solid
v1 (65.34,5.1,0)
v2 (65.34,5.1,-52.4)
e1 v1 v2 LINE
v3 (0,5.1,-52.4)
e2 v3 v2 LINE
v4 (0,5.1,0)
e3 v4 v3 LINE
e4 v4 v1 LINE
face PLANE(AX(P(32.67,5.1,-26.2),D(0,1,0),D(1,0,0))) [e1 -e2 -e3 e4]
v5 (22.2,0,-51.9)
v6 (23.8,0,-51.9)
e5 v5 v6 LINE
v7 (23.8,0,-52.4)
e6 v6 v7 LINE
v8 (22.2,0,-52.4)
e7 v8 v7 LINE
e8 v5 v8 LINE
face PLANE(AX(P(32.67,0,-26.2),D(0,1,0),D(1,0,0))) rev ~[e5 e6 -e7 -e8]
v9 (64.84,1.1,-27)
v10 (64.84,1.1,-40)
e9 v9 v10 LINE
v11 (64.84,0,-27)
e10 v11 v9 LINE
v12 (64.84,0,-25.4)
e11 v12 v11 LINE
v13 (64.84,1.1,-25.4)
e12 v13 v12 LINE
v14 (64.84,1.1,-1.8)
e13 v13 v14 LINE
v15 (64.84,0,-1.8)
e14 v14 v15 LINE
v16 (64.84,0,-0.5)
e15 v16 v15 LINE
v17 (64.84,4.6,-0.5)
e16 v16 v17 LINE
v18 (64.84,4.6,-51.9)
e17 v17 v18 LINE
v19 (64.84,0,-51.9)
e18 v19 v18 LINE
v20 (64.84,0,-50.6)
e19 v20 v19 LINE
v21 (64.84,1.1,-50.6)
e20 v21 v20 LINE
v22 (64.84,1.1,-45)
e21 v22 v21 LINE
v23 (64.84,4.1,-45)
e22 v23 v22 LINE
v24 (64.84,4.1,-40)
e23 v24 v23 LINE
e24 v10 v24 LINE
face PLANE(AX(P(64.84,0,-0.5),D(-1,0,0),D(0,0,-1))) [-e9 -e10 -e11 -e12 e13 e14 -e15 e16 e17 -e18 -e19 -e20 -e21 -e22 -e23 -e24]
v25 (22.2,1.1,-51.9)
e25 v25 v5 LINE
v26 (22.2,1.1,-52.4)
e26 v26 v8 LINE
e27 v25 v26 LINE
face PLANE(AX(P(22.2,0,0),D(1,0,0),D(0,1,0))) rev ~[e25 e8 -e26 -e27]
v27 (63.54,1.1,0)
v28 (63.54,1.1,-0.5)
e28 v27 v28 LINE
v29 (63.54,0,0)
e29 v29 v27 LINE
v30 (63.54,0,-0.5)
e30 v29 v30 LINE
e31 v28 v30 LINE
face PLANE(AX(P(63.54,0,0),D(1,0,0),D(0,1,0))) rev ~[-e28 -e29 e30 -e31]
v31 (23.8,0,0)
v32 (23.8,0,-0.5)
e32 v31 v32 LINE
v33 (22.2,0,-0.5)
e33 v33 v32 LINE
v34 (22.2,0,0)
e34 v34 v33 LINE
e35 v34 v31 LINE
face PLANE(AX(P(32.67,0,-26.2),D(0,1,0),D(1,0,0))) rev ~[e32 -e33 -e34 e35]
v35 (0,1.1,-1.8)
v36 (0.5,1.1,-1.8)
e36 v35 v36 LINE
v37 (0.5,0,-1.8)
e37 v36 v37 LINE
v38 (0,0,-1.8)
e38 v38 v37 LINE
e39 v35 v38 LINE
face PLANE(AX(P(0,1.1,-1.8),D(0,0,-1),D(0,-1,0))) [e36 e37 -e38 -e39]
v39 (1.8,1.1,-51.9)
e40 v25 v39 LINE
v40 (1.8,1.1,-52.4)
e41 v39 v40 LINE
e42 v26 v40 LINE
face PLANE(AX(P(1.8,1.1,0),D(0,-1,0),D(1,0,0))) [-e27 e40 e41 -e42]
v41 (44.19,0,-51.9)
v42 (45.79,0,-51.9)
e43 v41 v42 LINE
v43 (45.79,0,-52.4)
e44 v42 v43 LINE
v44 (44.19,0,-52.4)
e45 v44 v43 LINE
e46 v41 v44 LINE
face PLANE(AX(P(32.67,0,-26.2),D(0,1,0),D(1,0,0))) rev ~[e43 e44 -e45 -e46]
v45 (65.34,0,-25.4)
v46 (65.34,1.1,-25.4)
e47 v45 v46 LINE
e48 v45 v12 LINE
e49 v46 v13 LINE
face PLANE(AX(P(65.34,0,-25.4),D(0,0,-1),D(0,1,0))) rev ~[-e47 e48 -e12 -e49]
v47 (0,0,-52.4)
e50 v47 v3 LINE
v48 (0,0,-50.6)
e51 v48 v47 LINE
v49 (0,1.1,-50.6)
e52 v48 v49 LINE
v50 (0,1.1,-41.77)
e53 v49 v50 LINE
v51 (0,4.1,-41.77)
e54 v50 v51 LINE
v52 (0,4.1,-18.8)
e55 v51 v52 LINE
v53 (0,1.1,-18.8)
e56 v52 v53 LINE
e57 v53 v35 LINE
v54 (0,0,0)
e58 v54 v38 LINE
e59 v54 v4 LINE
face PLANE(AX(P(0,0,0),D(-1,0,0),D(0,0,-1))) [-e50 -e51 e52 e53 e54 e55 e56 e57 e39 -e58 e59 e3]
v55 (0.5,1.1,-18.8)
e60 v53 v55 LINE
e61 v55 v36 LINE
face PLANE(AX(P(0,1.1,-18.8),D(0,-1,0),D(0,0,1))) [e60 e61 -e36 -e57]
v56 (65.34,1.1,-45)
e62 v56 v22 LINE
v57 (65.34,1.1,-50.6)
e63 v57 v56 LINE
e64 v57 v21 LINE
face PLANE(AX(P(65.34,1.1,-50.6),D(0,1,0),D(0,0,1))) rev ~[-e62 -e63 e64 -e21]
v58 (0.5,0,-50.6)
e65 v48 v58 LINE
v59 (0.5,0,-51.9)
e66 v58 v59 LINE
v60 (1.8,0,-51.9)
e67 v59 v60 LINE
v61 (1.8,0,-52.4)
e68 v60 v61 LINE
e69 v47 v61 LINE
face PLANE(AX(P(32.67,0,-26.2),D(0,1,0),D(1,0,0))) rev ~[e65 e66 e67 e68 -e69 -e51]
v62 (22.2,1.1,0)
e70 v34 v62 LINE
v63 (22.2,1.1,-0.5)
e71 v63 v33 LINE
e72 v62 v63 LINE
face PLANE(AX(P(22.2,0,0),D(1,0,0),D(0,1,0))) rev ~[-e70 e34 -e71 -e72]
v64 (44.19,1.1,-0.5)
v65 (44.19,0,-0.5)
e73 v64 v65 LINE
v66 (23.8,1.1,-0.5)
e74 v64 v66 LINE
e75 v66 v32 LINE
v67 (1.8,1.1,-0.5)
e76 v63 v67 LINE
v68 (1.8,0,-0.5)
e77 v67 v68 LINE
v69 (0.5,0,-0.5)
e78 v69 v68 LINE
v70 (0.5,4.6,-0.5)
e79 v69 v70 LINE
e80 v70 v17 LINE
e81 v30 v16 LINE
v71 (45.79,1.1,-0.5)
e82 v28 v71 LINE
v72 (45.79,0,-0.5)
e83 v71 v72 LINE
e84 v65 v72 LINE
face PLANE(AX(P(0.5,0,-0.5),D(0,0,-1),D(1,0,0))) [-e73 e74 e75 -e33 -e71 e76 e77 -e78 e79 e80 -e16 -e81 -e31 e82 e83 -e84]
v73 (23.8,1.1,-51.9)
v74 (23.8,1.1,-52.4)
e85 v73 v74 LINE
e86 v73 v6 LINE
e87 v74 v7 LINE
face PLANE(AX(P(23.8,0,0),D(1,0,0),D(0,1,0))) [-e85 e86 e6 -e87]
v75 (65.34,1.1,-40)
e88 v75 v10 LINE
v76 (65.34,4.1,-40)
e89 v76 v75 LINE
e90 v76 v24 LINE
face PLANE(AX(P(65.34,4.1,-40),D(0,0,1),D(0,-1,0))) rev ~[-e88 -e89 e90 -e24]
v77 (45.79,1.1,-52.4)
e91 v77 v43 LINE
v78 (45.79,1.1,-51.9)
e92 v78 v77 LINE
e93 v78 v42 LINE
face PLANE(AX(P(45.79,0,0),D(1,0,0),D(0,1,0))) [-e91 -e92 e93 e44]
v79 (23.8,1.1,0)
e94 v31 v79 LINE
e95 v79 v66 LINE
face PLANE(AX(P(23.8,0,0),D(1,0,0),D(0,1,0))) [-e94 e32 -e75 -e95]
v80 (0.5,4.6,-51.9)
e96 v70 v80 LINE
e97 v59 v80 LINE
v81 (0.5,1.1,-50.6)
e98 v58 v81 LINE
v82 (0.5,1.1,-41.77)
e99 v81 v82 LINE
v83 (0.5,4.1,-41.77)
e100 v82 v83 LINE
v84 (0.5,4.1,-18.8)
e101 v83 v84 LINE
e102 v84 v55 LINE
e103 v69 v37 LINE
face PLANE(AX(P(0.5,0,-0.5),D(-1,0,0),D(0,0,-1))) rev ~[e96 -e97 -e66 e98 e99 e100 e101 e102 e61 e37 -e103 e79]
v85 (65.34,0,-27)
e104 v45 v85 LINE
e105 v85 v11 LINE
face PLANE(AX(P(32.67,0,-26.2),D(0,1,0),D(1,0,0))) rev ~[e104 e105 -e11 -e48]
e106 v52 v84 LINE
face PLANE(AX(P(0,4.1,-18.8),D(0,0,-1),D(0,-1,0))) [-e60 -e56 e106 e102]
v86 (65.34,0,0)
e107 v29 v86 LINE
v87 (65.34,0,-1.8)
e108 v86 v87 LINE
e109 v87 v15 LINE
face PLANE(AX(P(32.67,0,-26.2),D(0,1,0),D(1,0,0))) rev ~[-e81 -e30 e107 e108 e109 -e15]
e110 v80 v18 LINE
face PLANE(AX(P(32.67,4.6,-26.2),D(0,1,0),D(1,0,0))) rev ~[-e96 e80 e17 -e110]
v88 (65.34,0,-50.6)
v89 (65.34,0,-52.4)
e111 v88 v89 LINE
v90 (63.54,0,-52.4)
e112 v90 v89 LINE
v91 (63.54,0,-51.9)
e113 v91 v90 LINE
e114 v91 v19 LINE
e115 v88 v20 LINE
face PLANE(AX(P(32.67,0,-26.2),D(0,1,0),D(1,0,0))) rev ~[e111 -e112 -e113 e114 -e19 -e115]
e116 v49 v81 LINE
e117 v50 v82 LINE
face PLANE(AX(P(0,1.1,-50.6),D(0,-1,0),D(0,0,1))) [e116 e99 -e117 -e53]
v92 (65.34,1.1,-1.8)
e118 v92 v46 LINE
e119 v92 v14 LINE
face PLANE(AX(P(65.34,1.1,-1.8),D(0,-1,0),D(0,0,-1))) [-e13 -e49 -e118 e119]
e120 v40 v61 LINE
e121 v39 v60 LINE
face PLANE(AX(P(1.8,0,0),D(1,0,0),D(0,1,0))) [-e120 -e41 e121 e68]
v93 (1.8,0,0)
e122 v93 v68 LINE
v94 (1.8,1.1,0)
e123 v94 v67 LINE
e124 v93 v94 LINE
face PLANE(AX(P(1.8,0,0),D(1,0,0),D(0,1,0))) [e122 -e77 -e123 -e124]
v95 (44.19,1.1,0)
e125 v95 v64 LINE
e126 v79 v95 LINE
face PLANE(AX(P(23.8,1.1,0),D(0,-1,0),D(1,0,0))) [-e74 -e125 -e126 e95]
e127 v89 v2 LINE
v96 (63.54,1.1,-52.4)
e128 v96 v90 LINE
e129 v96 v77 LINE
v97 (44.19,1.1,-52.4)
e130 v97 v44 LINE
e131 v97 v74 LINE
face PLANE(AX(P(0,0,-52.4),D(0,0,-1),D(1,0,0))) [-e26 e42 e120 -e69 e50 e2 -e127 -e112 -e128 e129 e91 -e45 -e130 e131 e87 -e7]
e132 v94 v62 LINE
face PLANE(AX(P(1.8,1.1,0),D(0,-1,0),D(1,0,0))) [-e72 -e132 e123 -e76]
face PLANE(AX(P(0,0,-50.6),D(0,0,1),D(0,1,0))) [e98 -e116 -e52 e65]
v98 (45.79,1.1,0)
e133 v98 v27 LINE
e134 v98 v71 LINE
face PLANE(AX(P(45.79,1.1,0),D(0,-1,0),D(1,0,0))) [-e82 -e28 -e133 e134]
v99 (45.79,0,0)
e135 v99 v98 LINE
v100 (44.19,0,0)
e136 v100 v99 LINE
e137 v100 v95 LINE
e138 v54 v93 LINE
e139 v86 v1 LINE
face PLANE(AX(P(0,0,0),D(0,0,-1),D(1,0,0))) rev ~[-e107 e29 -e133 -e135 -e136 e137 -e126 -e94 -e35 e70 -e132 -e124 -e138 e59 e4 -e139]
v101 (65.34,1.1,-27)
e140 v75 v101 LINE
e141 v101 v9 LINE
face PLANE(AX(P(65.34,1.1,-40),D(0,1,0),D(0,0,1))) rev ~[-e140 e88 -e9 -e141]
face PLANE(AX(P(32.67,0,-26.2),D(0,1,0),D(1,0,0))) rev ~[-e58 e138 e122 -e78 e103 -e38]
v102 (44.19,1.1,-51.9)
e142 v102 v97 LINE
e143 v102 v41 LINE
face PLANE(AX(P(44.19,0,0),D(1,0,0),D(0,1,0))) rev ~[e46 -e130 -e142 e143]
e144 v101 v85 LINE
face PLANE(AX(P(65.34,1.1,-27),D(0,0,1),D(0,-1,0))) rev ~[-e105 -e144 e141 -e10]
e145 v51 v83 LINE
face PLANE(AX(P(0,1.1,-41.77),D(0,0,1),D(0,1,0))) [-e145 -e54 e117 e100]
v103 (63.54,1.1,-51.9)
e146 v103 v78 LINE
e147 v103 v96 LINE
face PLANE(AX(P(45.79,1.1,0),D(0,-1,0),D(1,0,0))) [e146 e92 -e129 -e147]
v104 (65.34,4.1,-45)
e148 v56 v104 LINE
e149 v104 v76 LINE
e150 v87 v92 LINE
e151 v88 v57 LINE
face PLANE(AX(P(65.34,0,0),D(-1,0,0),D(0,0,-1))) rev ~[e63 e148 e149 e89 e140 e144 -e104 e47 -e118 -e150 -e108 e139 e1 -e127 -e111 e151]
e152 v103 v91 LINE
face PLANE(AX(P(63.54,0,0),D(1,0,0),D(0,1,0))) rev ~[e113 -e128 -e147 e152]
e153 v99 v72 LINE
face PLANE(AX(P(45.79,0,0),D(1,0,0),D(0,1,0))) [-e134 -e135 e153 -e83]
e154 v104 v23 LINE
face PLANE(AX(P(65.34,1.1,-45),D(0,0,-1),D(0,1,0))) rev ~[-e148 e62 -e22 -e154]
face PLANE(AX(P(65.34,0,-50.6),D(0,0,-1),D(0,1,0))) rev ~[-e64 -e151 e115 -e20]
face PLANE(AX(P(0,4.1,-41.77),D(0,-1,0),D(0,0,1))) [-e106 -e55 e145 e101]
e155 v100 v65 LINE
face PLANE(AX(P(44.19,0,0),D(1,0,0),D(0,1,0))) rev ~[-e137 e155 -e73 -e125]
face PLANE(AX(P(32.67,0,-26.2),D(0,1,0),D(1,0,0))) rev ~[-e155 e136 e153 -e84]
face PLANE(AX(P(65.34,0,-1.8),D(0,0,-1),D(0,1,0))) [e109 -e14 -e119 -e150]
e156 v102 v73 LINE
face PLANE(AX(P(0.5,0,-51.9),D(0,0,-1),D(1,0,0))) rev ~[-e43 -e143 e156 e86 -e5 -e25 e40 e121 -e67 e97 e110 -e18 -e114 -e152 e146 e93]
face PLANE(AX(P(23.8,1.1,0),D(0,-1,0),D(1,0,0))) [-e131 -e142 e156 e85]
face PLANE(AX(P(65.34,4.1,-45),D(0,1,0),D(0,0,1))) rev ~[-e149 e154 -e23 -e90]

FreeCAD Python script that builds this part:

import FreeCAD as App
import Part
import Sketcher

V = App.Vector

doc = App.newDocument("Part")
params = doc.addObject("Spreadsheet::Sheet", "Params")
for row, (alias, value) in enumerate([
    ("sketch1_height", "52.4 mm"),
    ("sketch1_width", "65.34 mm"),
    ("pad1_length", "5.1 mm"),
    ("sketch2_height", "51.4 mm"),
    ("sketch2_width", "64.34 mm"),
    ("pocket1_length", "4.6 mm"),
    ("sketch3_width", "20.4 mm"),
    ("sketch3_height", "1.1 mm"),
    ("sketch3_width2", "20.39 mm"),
    ("sketch3_width3", "17.75 mm"),
    ("pocket2_length", "56.4 mm"),
    ("sketch4_width", "3 mm"),
    ("sketch4_height", "5 mm"),
    ("sketch4_height2", "13 mm"),
    ("sketch4_width2", "1.1 mm"),
    ("sketch4_height3", "23.6 mm"),
    ("pocket3_length", "4.9 mm"),
    ("sketch5_width", "3 mm"),
    ("sketch5_height", "17 mm"),
    ("sketch5_width2", "1.1 mm"),
    ("sketch5_height2", "48.8 mm"),
    ("sketch5_height3", "22.97 mm"),
    ("pocket4_length", "4.9 mm"),
], start=1):
    params.set(f"A{row}", alias)
    params.set(f"B{row}", "=" + value)
    params.setAlias(f"B{row}", alias)

body = doc.addObject("PartDesign::Body", "Body")

# Sketch on XZ plane
sketch1 = body.newObject("Sketcher::SketchObject", "Sketch")
sketch1.AttachmentSupport = (doc.getObject("XZ_Plane"), [""])
sketch1.MapMode = "FlatFace"
sketch1.addGeometry([
    Part.LineSegment(V(0, -52, 0), V(0, 0, 0)),
    Part.LineSegment(V(0, 0, 0), V(65, 0, 0)),
    Part.LineSegment(V(65, 0, 0), V(65, -52, 0)),
    Part.LineSegment(V(65, -52, 0), V(0, -52, 0)),
], False)
sketch1.addConstraint([
    Sketcher.Constraint("Coincident", 0, 2, 1, 1),
    Sketcher.Constraint("Coincident", 1, 2, 2, 1),
    Sketcher.Constraint("Coincident", 2, 2, 3, 1),
    Sketcher.Constraint("Coincident", 3, 2, 0, 1),
    Sketcher.Constraint("Vertical", 0),
    Sketcher.Constraint("Horizontal", 1),
    Sketcher.Constraint("Vertical", 2),
    Sketcher.Constraint("Horizontal", 3),
    Sketcher.Constraint("Coincident", 0, 2, -1, 1),
    Sketcher.Constraint("DistanceY", 0, 1, 0, 2, 52.4),
    Sketcher.Constraint("DistanceX", 1, 1, 1, 2, 65.34),
])
sketch1.setExpression("Constraints[9]", "Params.sketch1_height")
sketch1.setExpression("Constraints[10]", "Params.sketch1_width")
pad1 = body.newObject("PartDesign::Pad", "Pad")
pad1.Profile = sketch1
pad1.setExpression("Length", "Params.pad1_length")
pad1.Reversed = True

# Sketch on XZ plane
sketch2 = body.newObject("Sketcher::SketchObject", "Sketch001")
sketch2.AttachmentSupport = (doc.getObject("XZ_Plane"), [""])
sketch2.MapMode = "FlatFace"
sketch2.addGeometry([
    Part.LineSegment(V(0, -52, 0), V(0, 0, 0)),
    Part.LineSegment(V(0, 0, 0), V(65, 0, 0)),
    Part.LineSegment(V(65, 0, 0), V(65, -52, 0)),
    Part.LineSegment(V(65, -52, 0), V(0, -52, 0)),
], False)
sketch2.addConstraint([
    Sketcher.Constraint("Coincident", 0, 2, 1, 1),
    Sketcher.Constraint("Coincident", 1, 2, 2, 1),
    Sketcher.Constraint("Coincident", 2, 2, 3, 1),
    Sketcher.Constraint("Coincident", 3, 2, 0, 1),
    Sketcher.Constraint("Vertical", 0),
    Sketcher.Constraint("Horizontal", 1),
    Sketcher.Constraint("Vertical", 2),
    Sketcher.Constraint("Horizontal", 3),
    Sketcher.Constraint("DistanceY", 0, 1, 0, 2, 51.4),
    Sketcher.Constraint("DistanceX", 1, 1, 1, 2, 64.34),
    Sketcher.Constraint("DistanceX", -1, 1, 0, 2, 0.5),
    Sketcher.Constraint("DistanceY", 0, 2, -1, 1, 0.5),
])
sketch2.setExpression("Constraints[8]", "Params.sketch2_height")
sketch2.setExpression("Constraints[9]", "Params.sketch2_width")
pocket1 = body.newObject("PartDesign::Pocket", "Pocket")
pocket1.Profile = sketch2
pocket1.setExpression("Length", "Params.pocket1_length")

# Sketch on XY plane
sketch3 = body.newObject("Sketcher::SketchObject", "Sketch002")
sketch3.AttachmentSupport = (doc.getObject("XY_Plane"), [""])
sketch3.MapMode = "FlatFace"
sketch3.addGeometry([
    Part.LineSegment(V(1.8, 1.1, 0), V(1.8, 0, 0)),  # 0
    Part.LineSegment(V(1.8, 0, 0), V(22.2, 0, 0)),  # 1
    Part.LineSegment(V(22.2, 0, 0), V(22.2, 1.1, 0)),  # 2
    Part.LineSegment(V(22.2, 1.1, 0), V(1.8, 1.1, 0)),  # 3
    Part.LineSegment(V(23.8, 1.1, 0), V(23.8, 0, 0)),  # 4
    Part.LineSegment(V(23.8, 0, 0), V(44.2, 0, 0)),  # 5
    Part.LineSegment(V(44.2, 0, 0), V(44.2, 1.1, 0)),  # 6
    Part.LineSegment(V(44.2, 1.1, 0), V(23.8, 1.1, 0)),  # 7
    Part.LineSegment(V(45.8, 1.1, 0), V(45.8, 0, 0)),  # 8
    Part.LineSegment(V(45.8, 0, 0), V(63.5, 0, 0)),  # 9
    Part.LineSegment(V(63.5, 0, 0), V(63.5, 1.1, 0)),  # 10
    Part.LineSegment(V(63.5, 1.1, 0), V(45.8, 1.1, 0)),  # 11
], False)
sketch3.addConstraint([
    Sketcher.Constraint("Coincident", 0, 2, 1, 1),
    Sketcher.Constraint("Coincident", 1, 2, 2, 1),
    Sketcher.Constraint("Coincident", 2, 2, 3, 1),
    Sketcher.Constraint("Coincident", 3, 2, 0, 1),
    Sketcher.Constraint("Coincident", 4, 2, 5, 1),
    Sketcher.Constraint("Coincident", 5, 2, 6, 1),
    Sketcher.Constraint("Coincident", 6, 2, 7, 1),
    Sketcher.Constraint("Coincident", 7, 2, 4, 1),
    Sketcher.Constraint("Coincident", 8, 2, 9, 1),
    Sketcher.Constraint("Coincident", 9, 2, 10, 1),
    Sketcher.Constraint("Coincident", 10, 2, 11, 1),
    Sketcher.Constraint("Coincident", 11, 2, 8, 1),
    Sketcher.Constraint("Vertical", 0),
    Sketcher.Constraint("Horizontal", 1),
    Sketcher.Constraint("Vertical", 2),
    Sketcher.Constraint("Horizontal", 3),
    Sketcher.Constraint("Vertical", 4),
    Sketcher.Constraint("Horizontal", 5),
    Sketcher.Constraint("Vertical", 6),
    Sketcher.Constraint("Horizontal", 7),
    Sketcher.Constraint("Vertical", 8),
    Sketcher.Constraint("Horizontal", 9),
    Sketcher.Constraint("Vertical", 10),
    Sketcher.Constraint("Horizontal", 11),
    Sketcher.Constraint("PointOnObject", 0, 2, -1),
    Sketcher.Constraint("PointOnObject", 4, 2, -1),
    Sketcher.Constraint("PointOnObject", 8, 2, -1),
    Sketcher.Constraint("Horizontal", 3, 2, 6, 2),
    Sketcher.Constraint("Horizontal", 7, 2, 10, 2),
    Sketcher.Constraint("DistanceX", 1, 1, 1, 2, 20.4),
    Sketcher.Constraint("DistanceY", 0, 2, 0, 1, 1.1),
    Sketcher.Constraint("DistanceX", 0, 2, 4, 2, 22.0),
    Sketcher.Constraint("DistanceX", 5, 1, 5, 2, 20.39),
    Sketcher.Constraint("DistanceX", 9, 1, 9, 2, 17.75),
    Sketcher.Constraint("DistanceX", -1, 1, 0, 2, 1.8),
    Sketcher.Constraint("DistanceX", 5, 2, 8, 2, 1.6),
])
sketch3.setExpression("Constraints[29]", "Params.sketch3_width")
sketch3.setExpression("Constraints[30]", "Params.sketch3_height")
sketch3.setExpression("Constraints[32]", "Params.sketch3_width2")
sketch3.setExpression("Constraints[33]", "Params.sketch3_width3")
pocket2 = body.newObject("PartDesign::Pocket", "Pocket001")
pocket2.Profile = sketch3
pocket2.setExpression("Length", "Params.pocket2_length")

# Sketch on YZ plane
sketch4 = body.newObject("Sketcher::SketchObject", "Sketch003")
sketch4.AttachmentSupport = (doc.getObject("YZ_Plane"), [""])
sketch4.MapMode = "FlatFace"
sketch4.AttachmentOffset = App.Placement(V(0, 0, 65.34), App.Rotation())
sketch4.addGeometry([
    Part.LineSegment(V(1.1, -1.8, 0), V(0, -1.8, 0)),  # 0
    Part.LineSegment(V(0, -1.8, 0), V(0, -25.4, 0)),  # 1
    Part.LineSegment(V(0, -25.4, 0), V(1.1, -25.4, 0)),  # 2
    Part.LineSegment(V(1.1, -25.4, 0), V(1.1, -1.8, 0)),  # 3
    Part.LineSegment(V(0, -27, 0), V(0, -50.6, 0)),  # 4
    Part.LineSegment(V(0, -50.6, 0), V(1.1, -50.6, 0)),  # 5
    Part.LineSegment(V(1.1, -50.6, 0), V(1.1, -45, 0)),  # 6
    Part.LineSegment(V(1.1, -45, 0), V(4.1, -45, 0)),  # 7
    Part.LineSegment(V(4.1, -45, 0), V(4.1, -40, 0)),  # 8
    Part.LineSegment(V(4.1, -40, 0), V(1.1, -40, 0)),  # 9
    Part.LineSegment(V(1.1, -40, 0), V(1.1, -27, 0)),  # 10
    Part.LineSegment(V(1.1, -27, 0), V(0, -27, 0)),  # 11
], False)
sketch4.addConstraint([
    Sketcher.Constraint("Coincident", 0, 2, 1, 1),
    Sketcher.Constraint("Coincident", 1, 2, 2, 1),
    Sketcher.Constraint("Coincident", 2, 2, 3, 1),
    Sketcher.Constraint("Coincident", 3, 2, 0, 1),
    Sketcher.Constraint("Coincident", 4, 2, 5, 1),
    Sketcher.Constraint("Coincident", 5, 2, 6, 1),
    Sketcher.Constraint("Coincident", 6, 2, 7, 1),
    Sketcher.Constraint("Coincident", 7, 2, 8, 1),
    Sketcher.Constraint("Coincident", 8, 2, 9, 1),
    Sketcher.Constraint("Coincident", 9, 2, 10, 1),
    Sketcher.Constraint("Coincident", 10, 2, 11, 1),
    Sketcher.Constraint("Coincident", 11, 2, 4, 1),
    Sketcher.Constraint("Horizontal", 0),
    Sketcher.Constraint("Vertical", 1),
    Sketcher.Constraint("Horizontal", 2),
    Sketcher.Constraint("Vertical", 3),
    Sketcher.Constraint("Vertical", 4),
    Sketcher.Constraint("Horizontal", 5),
    Sketcher.Constraint("Vertical", 6),
    Sketcher.Constraint("Horizontal", 7),
    Sketcher.Constraint("Vertical", 8),
    Sketcher.Constraint("Horizontal", 9),
    Sketcher.Constraint("Vertical", 10),
    Sketcher.Constraint("Horizontal", 11),
    Sketcher.Constraint("PointOnObject", 0, 2, -2),
    Sketcher.Constraint("PointOnObject", 4, 2, -2),
    Sketcher.Constraint("Vertical", 3, 2, 5, 2),
    Sketcher.Constraint("Vertical", 6, 2, 9, 2),
    Sketcher.Constraint("Equal", 3, 4),
    Sketcher.Constraint("DistanceX", 7, 1, 7, 2, 3.0),
    Sketcher.Constraint("DistanceY", 8, 1, 8, 2, 5.0),
    Sketcher.Constraint("DistanceY", 10, 1, 10, 2, 13.0),
    Sketcher.Constraint("DistanceX", 0, 2, 0, 1, 1.1),
    Sketcher.Constraint("DistanceY", 1, 2, 1, 1, 23.6),
    Sketcher.Constraint("DistanceY", 6, 2, -1, 1, 45.0),
    Sketcher.Constraint("DistanceY", 0, 2, -1, 1, 1.8),
])
sketch4.setExpression("Constraints[29]", "Params.sketch4_width")
sketch4.setExpression("Constraints[30]", "Params.sketch4_height")
sketch4.setExpression("Constraints[31]", "Params.sketch4_height2")
sketch4.setExpression("Constraints[32]", "Params.sketch4_width2")
sketch4.setExpression("Constraints[33]", "Params.sketch4_height3")
pocket3 = body.newObject("PartDesign::Pocket", "Pocket002")
pocket3.Profile = sketch4
pocket3.setExpression("Length", "Params.pocket3_length")

# Sketch on YZ plane
sketch5 = body.newObject("Sketcher::SketchObject", "Sketch004")
sketch5.AttachmentSupport = (doc.getObject("YZ_Plane"), [""])
sketch5.MapMode = "FlatFace"
sketch5.addGeometry([
    Part.LineSegment(V(1.1, -50.6, 0), V(0, -50.6, 0)),  # 0
    Part.LineSegment(V(0, -50.6, 0), V(0, -1.8, 0)),  # 1
    Part.LineSegment(V(0, -1.8, 0), V(1.1, -1.8, 0)),  # 2
    Part.LineSegment(V(1.1, -1.8, 0), V(1.1, -18.8, 0)),  # 3
    Part.LineSegment(V(1.1, -18.8, 0), V(4.1, -18.8, 0)),  # 4
    Part.LineSegment(V(4.1, -18.8, 0), V(4.1, -41.8, 0)),  # 5
    Part.LineSegment(V(4.1, -41.8, 0), V(1.1, -41.8, 0)),  # 6
    Part.LineSegment(V(1.1, -41.8, 0), V(1.1, -50.6, 0)),  # 7
], False)
sketch5.addConstraint([
    Sketcher.Constraint("Coincident", 0, 2, 1, 1),
    Sketcher.Constraint("Coincident", 1, 2, 2, 1),
    Sketcher.Constraint("Coincident", 2, 2, 3, 1),
    Sketcher.Constraint("Coincident", 3, 2, 4, 1),
    Sketcher.Constraint("Coincident", 4, 2, 5, 1),
    Sketcher.Constraint("Coincident", 5, 2, 6, 1),
    Sketcher.Constraint("Coincident", 6, 2, 7, 1),
    Sketcher.Constraint("Coincident", 7, 2, 0, 1),
    Sketcher.Constraint("Horizontal", 0),
    Sketcher.Constraint("Vertical", 1),
    Sketcher.Constraint("Horizontal", 2),
    Sketcher.Constraint("Vertical", 3),
    Sketcher.Constraint("Horizontal", 4),
    Sketcher.Constraint("Vertical", 5),
    Sketcher.Constraint("Horizontal", 6),
    Sketcher.Constraint("Vertical", 7),
    Sketcher.Constraint("PointOnObject", 0, 2, -2),
    Sketcher.Constraint("Vertical", 3, 2, 6, 2),
    Sketcher.Constraint("DistanceX", 4, 1, 4, 2, 3.0),
    Sketcher.Constraint("DistanceY", 3, 2, 3, 1, 17.0),
    Sketcher.Constraint("DistanceX", 0, 2, 0, 1, 1.1),
    Sketcher.Constraint("DistanceY", 1, 1, 1, 2, 48.8),
    Sketcher.Constraint("DistanceY", 5, 2, 5, 1, 22.97),
    Sketcher.Constraint("DistanceY", 0, 2, -1, 1, 50.6),
])
sketch5.setExpression("Constraints[18]", "Params.sketch5_width")
sketch5.setExpression("Constraints[19]", "Params.sketch5_height")
sketch5.setExpression("Constraints[20]", "Params.sketch5_width2")
sketch5.setExpression("Constraints[21]", "Params.sketch5_height2")
sketch5.setExpression("Constraints[22]", "Params.sketch5_height3")
pocket4 = body.newObject("PartDesign::Pocket", "Pocket003")
pocket4.Profile = sketch5
pocket4.setExpression("Length", "Params.pocket4_length")
pocket4.Reversed = True

doc.recompute()
